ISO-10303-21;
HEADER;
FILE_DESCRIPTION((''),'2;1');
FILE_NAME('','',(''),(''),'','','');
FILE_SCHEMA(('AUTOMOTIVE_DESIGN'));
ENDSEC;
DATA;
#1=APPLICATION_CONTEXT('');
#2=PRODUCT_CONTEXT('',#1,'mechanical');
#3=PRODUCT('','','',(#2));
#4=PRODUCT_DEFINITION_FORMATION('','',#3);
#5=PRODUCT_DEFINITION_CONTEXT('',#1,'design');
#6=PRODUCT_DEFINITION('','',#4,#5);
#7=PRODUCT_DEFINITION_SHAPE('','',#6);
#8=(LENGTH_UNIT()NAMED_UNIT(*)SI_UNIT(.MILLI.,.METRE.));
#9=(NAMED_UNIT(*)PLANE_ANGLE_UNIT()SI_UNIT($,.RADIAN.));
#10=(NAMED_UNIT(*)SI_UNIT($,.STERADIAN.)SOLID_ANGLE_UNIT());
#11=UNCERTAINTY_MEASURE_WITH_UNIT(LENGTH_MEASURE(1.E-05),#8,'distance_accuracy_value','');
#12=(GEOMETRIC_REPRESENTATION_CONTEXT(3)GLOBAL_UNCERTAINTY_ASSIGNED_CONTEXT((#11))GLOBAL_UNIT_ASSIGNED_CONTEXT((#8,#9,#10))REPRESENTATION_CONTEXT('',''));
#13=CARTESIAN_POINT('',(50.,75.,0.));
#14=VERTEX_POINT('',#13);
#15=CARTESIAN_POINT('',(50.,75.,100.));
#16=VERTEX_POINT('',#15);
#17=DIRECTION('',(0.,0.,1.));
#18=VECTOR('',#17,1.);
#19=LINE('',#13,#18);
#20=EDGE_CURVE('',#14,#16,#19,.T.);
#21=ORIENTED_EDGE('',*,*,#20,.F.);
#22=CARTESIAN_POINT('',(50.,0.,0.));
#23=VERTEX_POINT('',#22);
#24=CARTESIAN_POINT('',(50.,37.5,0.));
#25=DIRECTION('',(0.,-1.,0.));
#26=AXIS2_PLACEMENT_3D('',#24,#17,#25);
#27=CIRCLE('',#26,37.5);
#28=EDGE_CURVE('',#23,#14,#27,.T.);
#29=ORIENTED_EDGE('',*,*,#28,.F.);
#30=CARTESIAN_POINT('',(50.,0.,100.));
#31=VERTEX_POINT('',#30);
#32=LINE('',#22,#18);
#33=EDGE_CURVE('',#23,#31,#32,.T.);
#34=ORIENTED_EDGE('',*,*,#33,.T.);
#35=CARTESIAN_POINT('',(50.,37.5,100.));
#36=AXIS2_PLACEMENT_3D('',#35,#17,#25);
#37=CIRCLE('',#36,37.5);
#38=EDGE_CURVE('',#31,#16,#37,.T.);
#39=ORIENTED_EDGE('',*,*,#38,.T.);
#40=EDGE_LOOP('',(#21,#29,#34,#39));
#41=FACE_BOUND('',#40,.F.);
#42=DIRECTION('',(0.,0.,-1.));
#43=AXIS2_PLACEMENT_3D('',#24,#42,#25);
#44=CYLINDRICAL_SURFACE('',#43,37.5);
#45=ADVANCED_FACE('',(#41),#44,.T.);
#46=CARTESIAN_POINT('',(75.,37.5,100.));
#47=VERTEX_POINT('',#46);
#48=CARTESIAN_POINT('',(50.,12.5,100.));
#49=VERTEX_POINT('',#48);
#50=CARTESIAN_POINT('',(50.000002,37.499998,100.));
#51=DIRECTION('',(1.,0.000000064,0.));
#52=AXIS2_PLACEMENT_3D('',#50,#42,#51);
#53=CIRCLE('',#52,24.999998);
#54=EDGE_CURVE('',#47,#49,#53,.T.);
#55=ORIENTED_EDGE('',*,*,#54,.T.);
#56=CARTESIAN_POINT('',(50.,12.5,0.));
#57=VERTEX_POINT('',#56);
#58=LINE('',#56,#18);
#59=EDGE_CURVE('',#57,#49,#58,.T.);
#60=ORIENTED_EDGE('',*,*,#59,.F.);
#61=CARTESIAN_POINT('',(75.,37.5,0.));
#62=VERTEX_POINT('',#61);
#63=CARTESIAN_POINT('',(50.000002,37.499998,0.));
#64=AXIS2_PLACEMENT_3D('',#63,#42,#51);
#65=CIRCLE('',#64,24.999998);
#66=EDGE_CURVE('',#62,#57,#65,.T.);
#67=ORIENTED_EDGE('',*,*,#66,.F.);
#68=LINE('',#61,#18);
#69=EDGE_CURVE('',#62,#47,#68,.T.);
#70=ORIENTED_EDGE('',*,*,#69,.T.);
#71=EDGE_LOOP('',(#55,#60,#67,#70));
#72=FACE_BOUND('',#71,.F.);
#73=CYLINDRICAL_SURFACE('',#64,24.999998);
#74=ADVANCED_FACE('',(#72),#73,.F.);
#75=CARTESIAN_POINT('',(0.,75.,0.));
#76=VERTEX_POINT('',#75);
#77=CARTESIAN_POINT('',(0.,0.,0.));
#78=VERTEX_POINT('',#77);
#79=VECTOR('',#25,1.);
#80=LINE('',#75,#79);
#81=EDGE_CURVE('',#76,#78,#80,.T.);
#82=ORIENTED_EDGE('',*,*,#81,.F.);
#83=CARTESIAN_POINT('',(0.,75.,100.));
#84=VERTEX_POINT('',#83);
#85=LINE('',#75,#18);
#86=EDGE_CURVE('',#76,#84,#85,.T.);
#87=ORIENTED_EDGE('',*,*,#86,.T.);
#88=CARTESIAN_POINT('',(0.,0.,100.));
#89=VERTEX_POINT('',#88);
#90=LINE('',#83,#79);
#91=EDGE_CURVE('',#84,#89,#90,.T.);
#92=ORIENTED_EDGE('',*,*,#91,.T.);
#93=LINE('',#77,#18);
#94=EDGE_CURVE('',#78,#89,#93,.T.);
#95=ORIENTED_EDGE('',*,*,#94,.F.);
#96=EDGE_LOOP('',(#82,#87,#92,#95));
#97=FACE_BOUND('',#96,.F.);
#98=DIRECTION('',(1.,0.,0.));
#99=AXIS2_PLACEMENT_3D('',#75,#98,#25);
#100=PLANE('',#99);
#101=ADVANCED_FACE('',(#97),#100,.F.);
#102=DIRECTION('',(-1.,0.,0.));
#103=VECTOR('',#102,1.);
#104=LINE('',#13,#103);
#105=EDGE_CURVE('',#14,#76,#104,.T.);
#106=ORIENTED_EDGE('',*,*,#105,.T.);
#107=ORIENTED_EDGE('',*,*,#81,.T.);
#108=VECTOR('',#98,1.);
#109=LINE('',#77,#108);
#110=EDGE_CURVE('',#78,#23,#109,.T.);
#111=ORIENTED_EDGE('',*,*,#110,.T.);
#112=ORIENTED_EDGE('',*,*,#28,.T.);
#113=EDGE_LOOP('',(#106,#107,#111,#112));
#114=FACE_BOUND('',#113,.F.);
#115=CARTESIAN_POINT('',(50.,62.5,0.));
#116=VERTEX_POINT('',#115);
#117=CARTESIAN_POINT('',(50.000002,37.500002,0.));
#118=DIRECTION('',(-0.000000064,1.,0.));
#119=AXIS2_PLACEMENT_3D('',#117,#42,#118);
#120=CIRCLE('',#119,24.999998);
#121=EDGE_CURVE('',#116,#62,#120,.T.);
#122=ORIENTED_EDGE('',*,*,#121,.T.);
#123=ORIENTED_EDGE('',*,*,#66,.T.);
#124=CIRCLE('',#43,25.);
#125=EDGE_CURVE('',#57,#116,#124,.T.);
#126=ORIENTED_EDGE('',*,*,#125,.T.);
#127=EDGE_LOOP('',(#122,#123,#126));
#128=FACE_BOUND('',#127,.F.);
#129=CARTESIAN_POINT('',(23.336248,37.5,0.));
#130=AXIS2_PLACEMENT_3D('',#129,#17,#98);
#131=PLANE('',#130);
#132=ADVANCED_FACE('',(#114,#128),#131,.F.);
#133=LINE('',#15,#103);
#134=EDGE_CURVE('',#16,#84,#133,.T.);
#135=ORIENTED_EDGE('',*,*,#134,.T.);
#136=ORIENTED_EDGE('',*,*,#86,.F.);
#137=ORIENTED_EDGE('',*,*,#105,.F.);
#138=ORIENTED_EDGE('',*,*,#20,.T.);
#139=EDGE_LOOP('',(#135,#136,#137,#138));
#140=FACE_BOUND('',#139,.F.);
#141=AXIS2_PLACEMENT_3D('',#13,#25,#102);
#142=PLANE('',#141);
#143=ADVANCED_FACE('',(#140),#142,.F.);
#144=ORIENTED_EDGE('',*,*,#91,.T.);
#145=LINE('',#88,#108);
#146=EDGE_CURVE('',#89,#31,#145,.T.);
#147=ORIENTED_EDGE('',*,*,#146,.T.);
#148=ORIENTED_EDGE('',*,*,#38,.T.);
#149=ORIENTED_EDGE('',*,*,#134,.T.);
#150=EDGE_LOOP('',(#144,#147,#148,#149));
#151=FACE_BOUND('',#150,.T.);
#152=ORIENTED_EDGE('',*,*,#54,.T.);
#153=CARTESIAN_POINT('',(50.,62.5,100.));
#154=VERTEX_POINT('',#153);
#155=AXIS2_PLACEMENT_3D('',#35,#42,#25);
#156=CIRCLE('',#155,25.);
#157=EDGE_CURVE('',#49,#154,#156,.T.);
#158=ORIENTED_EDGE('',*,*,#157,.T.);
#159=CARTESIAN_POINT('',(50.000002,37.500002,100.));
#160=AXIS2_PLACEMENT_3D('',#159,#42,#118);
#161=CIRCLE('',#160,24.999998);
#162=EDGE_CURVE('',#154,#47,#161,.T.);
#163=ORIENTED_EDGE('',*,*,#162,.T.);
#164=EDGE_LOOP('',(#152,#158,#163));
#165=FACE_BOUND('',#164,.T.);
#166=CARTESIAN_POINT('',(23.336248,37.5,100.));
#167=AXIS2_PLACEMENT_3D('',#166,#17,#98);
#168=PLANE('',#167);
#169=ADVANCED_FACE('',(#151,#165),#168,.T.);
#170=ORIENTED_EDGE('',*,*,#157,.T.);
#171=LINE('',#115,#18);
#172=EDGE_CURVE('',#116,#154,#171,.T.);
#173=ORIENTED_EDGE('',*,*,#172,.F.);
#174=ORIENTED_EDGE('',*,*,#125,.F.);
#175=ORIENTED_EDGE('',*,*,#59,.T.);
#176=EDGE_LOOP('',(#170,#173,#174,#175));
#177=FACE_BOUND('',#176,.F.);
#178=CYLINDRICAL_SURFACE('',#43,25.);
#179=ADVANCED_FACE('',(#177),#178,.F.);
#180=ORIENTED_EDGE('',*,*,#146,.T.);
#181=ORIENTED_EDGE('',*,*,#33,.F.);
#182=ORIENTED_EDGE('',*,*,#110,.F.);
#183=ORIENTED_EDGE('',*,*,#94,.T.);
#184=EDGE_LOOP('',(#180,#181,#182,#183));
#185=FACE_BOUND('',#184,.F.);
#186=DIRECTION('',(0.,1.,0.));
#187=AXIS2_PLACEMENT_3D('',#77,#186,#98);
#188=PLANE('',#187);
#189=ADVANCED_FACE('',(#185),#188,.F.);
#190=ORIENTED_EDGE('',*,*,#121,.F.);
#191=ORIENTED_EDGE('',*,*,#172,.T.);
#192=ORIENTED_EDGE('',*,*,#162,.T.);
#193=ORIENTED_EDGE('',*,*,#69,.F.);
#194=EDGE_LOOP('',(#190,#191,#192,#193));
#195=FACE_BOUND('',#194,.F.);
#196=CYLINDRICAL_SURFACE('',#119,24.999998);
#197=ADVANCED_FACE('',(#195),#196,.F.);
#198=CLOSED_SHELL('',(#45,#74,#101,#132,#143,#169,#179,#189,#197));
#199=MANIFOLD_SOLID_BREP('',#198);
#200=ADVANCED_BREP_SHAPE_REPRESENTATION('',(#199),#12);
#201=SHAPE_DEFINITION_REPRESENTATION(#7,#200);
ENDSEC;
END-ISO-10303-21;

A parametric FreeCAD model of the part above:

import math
import FreeCAD as App
import Part
import Sketcher

V = App.Vector
Q = App.Units.Quantity

doc = App.newDocument("Part")
body = doc.addObject("PartDesign::Body", "Body")

sketch1 = doc.addObject("Sketcher::SketchObject", "Sketch")
body.addObject(sketch1)
sketch1.AttachmentSupport = (doc.XY_Plane, [""])
sketch1.MapMode = "FlatFace"
sketch1.addGeometry([
    Part.LineSegment(V(0, 75, 0), V(0, 0, 0)),
    Part.LineSegment(V(0, 0, 0), V(50, 0, 0)),
    Part.ArcOfCircle(Part.Circle(V(50, 37.5, 0), V(0, 0, 1), 37.5), math.radians(-90), math.radians(90)),
    Part.LineSegment(V(50, 75, 0), V(0, 75, 0)),
    Part.ArcOfCircle(Part.Circle(V(50, 37.5, 0), V(0, 0, 1), 25), math.radians(90), math.radians(270)),
    Part.ArcOfCircle(Part.Circle(V(50.000002, 37.500002, 0), V(0, 0, 1), 24.999998), math.radians(-0.000004), math.radians(90.000004)),
    Part.ArcOfCircle(Part.Circle(V(50.000002, 37.499998, 0), V(0, 0, 1), 24.999998), math.radians(-90.000004), math.radians(0.000004)),
], False)
sketch1.addConstraint([
    Sketcher.Constraint("Coincident", 0, 2, 1, 1),
    Sketcher.Constraint("Tangent", 1, 2, 2, 1),
    Sketcher.Constraint("Tangent", 2, 2, 3, 1),
    Sketcher.Constraint("Coincident", 3, 2, 0, 1),
    Sketcher.Constraint("Tangent", 4, 1, 5, 2),
    Sketcher.Constraint("Tangent", 5, 1, 6, 2),
    Sketcher.Constraint("Tangent", 6, 1, 4, 2),
    Sketcher.Constraint("Vertical", 0),
    Sketcher.Constraint("Horizontal", 1),
    Sketcher.Constraint("Horizontal", 3),
    Sketcher.Constraint("Coincident", 0, 2, -1, 1),
    Sketcher.Constraint("Coincident", 4, 3, 2, 3),
    Sketcher.Constraint("Horizontal", 6, 3, 5, 1),
    Sketcher.Constraint("Vertical", 2, 2, 4, 1),
    Sketcher.Constraint("Vertical", 4, 1, 6, 1),
    Sketcher.Constraint("Radius", 4, Q("25 mm")),
    Sketcher.Constraint("Radius", 2, Q("37.5 mm")),
    Sketcher.Constraint("DistanceX", 1, 1, 1, 2, Q("50 mm")),
])
pad1 = doc.addObject("PartDesign::Pad", "Pad")
body.addObject(pad1)
pad1.Profile = sketch1
pad1.Length = 100

doc.recompute()
